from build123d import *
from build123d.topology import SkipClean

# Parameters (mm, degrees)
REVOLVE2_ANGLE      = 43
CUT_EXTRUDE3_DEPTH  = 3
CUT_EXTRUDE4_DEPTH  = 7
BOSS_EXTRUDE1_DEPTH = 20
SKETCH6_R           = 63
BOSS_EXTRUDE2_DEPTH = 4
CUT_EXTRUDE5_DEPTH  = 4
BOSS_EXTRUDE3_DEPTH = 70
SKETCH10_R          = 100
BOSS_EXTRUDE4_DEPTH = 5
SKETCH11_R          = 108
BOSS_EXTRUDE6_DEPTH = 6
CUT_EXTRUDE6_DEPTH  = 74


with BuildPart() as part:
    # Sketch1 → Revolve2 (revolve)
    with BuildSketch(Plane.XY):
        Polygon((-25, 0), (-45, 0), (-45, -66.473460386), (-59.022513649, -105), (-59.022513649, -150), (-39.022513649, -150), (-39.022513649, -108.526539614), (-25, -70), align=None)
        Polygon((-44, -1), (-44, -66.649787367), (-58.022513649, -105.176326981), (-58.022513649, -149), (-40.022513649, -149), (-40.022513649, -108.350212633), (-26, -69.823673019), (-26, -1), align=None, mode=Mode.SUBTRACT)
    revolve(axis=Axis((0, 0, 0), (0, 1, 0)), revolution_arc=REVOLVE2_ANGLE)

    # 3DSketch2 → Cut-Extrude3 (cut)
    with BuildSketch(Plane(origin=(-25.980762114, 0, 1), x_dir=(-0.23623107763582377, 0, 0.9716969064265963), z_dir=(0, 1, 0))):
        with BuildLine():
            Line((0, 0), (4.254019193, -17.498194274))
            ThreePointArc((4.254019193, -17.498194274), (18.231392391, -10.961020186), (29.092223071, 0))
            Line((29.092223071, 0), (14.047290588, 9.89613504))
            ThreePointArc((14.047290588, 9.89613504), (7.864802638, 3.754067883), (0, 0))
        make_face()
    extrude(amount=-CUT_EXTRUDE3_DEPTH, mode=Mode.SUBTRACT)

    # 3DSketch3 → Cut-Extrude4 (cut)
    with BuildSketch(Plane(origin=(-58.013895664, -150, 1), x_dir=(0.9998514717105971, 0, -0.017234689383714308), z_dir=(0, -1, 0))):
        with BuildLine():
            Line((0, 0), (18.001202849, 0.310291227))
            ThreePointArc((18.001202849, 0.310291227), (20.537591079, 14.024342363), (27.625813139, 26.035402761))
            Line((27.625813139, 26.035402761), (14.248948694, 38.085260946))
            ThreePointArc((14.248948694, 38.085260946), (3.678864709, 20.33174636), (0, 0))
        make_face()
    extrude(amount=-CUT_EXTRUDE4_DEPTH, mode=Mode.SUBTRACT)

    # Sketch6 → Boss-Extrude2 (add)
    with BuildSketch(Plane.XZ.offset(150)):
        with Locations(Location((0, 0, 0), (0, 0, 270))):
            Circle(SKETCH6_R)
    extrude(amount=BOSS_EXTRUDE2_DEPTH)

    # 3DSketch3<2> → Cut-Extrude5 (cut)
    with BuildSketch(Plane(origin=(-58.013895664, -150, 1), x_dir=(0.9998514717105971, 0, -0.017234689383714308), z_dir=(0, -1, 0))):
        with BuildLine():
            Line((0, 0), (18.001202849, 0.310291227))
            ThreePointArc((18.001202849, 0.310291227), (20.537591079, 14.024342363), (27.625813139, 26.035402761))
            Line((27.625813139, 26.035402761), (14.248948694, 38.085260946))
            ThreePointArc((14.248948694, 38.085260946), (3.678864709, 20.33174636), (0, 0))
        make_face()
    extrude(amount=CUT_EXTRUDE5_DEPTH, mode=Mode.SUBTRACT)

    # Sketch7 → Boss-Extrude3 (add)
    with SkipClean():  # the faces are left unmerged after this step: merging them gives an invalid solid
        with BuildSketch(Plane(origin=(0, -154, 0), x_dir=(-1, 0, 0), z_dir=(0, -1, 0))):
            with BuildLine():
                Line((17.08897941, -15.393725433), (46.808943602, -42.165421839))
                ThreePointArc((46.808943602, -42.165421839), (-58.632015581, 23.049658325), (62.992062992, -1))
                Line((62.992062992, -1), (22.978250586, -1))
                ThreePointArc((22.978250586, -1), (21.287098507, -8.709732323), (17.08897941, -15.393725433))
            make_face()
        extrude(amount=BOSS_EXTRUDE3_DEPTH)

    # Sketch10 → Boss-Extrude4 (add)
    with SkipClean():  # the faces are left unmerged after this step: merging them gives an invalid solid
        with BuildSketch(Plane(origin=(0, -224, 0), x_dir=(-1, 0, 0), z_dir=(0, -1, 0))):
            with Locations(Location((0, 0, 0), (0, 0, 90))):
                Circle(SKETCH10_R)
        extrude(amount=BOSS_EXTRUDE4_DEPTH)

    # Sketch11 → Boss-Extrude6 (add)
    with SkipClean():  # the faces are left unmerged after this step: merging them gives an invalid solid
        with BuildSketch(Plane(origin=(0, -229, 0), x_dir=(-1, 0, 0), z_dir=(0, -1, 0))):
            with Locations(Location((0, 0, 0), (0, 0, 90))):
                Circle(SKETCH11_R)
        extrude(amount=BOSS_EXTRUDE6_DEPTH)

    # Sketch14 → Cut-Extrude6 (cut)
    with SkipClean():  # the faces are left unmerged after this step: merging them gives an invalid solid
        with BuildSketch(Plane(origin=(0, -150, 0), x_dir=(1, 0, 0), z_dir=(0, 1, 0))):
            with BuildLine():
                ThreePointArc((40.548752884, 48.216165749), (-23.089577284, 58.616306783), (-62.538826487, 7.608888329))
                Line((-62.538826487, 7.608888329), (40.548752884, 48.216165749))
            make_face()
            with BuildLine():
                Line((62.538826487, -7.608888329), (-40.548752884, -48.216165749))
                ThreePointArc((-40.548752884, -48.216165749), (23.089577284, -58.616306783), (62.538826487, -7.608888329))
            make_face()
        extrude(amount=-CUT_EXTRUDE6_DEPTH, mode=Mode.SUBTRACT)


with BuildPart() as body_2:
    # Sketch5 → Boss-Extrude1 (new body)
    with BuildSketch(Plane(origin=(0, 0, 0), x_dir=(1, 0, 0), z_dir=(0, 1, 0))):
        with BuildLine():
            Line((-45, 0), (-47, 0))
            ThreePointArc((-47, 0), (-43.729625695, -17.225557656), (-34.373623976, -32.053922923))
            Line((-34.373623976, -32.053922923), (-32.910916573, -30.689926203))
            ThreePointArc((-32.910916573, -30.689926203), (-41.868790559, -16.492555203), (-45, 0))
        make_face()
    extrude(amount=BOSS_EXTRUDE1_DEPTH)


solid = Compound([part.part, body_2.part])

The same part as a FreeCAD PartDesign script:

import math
import FreeCAD as App
import Part
import Sketcher
Q = App.Units.Quantity

doc = App.newDocument("Part")
body = doc.addObject("PartDesign::Body", "Body")

sketch1 = doc.addObject("Sketcher::SketchObject", "Sketch")
body.addObject(sketch1)
sketch1.AttachmentSupport = (doc.XY_Plane, [""])
sketch1.MapMode = "FlatFace"
sketch1.addGeometry(Part.LineSegment(App.Vector(-25, 0, 0), App.Vector(-45, 0, 0)), False)
sketch1.addGeometry(Part.LineSegment(App.Vector(-45, 0, 0), App.Vector(-45, -66, 0)), False)
sketch1.addGeometry(Part.LineSegment(App.Vector(-45, -66, 0), App.Vector(-59, -105, 0)), False)
sketch1.addGeometry(Part.LineSegment(App.Vector(-59, -105, 0), App.Vector(-59, -150, 0)), False)
sketch1.addGeometry(Part.LineSegment(App.Vector(-59, -150, 0), App.Vector(-39, -150, 0)), False)
sketch1.addGeometry(Part.LineSegment(App.Vector(-39, -150, 0), App.Vector(-39, -109, 0)), False)
sketch1.addGeometry(Part.LineSegment(App.Vector(-39, -109, 0), App.Vector(-25, -70, 0)), False)
sketch1.addGeometry(Part.LineSegment(App.Vector(-25, -70, 0), App.Vector(-25, 0, 0)), False)
sketch1.addGeometry(Part.LineSegment(App.Vector(-44, -67, 0), App.Vector(-44, -1, 0)), False)
sketch1.addGeometry(Part.LineSegment(App.Vector(-44, -1, 0), App.Vector(-26, -1, 0)), False)
sketch1.addGeometry(Part.LineSegment(App.Vector(-26, -1, 0), App.Vector(-26, -70, 0)), False)
sketch1.addGeometry(Part.LineSegment(App.Vector(-26, -70, 0), App.Vector(-40, -108, 0)), False)
sketch1.addGeometry(Part.LineSegment(App.Vector(-40, -108, 0), App.Vector(-40, -149, 0)), False)
sketch1.addGeometry(Part.LineSegment(App.Vector(-40, -149, 0), App.Vector(-58, -149, 0)), False)
sketch1.addGeometry(Part.LineSegment(App.Vector(-58, -149, 0), App.Vector(-58, -105, 0)), False)
sketch1.addGeometry(Part.LineSegment(App.Vector(-58, -105, 0), App.Vector(-44, -67, 0)), False)
sketch1.addConstraint(Sketcher.Constraint("Coincident", 0, 2, 1, 1))
sketch1.addConstraint(Sketcher.Constraint("Coincident", 1, 2, 2, 1))
sketch1.addConstraint(Sketcher.Constraint("Coincident", 2, 2, 3, 1))
sketch1.addConstraint(Sketcher.Constraint("Coincident", 3, 2, 4, 1))
sketch1.addConstraint(Sketcher.Constraint("Coincident", 4, 2, 5, 1))
sketch1.addConstraint(Sketcher.Constraint("Coincident", 5, 2, 6, 1))
sketch1.addConstraint(Sketcher.Constraint("Coincident", 6, 2, 7, 1))
sketch1.addConstraint(Sketcher.Constraint("Coincident", 7, 2, 0, 1))
sketch1.addConstraint(Sketcher.Constraint("Coincident", 8, 2, 9, 1))
sketch1.addConstraint(Sketcher.Constraint("Coincident", 9, 2, 10, 1))
sketch1.addConstraint(Sketcher.Constraint("Coincident", 10, 2, 11, 1))
sketch1.addConstraint(Sketcher.Constraint("Coincident", 11, 2, 12, 1))
sketch1.addConstraint(Sketcher.Constraint("Coincident", 12, 2, 13, 1))
sketch1.addConstraint(Sketcher.Constraint("Coincident", 13, 2, 14, 1))
sketch1.addConstraint(Sketcher.Constraint("Coincident", 14, 2, 15, 1))
sketch1.addConstraint(Sketcher.Constraint("Coincident", 15, 2, 8, 1))
sketch1.addConstraint(Sketcher.Constraint("Horizontal", 0))
sketch1.addConstraint(Sketcher.Constraint("Vertical", 1))
sketch1.addConstraint(Sketcher.Constraint("Vertical", 3))
sketch1.addConstraint(Sketcher.Constraint("Horizontal", 4))
sketch1.addConstraint(Sketcher.Constraint("Vertical", 5))
sketch1.addConstraint(Sketcher.Constraint("Vertical", 7))
sketch1.addConstraint(Sketcher.Constraint("Vertical", 8))
sketch1.addConstraint(Sketcher.Constraint("Horizontal", 9))
sketch1.addConstraint(Sketcher.Constraint("Vertical", 10))
sketch1.addConstraint(Sketcher.Constraint("Vertical", 12))
sketch1.addConstraint(Sketcher.Constraint("Horizontal", 13))
sketch1.addConstraint(Sketcher.Constraint("Vertical", 14))
sketch1.addConstraint(Sketcher.Constraint("PointOnObject", 0, 2, -1))
sketch1.addConstraint(Sketcher.Constraint("Parallel", 2, 6))
sketch1.addConstraint(Sketcher.Constraint("Parallel", 6, 11))
sketch1.addConstraint(Sketcher.Constraint("Parallel", 11, 15))
sketch1.addConstraint(Sketcher.Constraint("Equal", 0, 4))
sketch1.addConstraint(Sketcher.Constraint("Equal", 9, 13))
sketch1.addConstraint(Sketcher.Constraint("Equal", 6, 11))
sketch1.addConstraint(Sketcher.Constraint("DistanceX", 0, 2, 0, 1, Q("20 mm")))
sketch1.addConstraint(Sketcher.Constraint("DistanceX", 9, 1, 9, 2, Q("18 mm")))
sketch1.addConstraint(Sketcher.Constraint("DistanceY", 3, 2, 3, 1, Q("45 mm")))
sketch1.addConstraint(Sketcher.Constraint("DistanceY", 7, 1, 7, 2, Q("70 mm")))
sketch1.addConstraint(Sketcher.Constraint("Angle", 2, Q("-110 deg")))
sketch1.addConstraint(Sketcher.Constraint("DistanceX", 0, 2, -1, 1, Q("45 mm")))
sketch1.addConstraint(Sketcher.Constraint("DistanceY", 2, 2, -1, 1, Q("105 mm")))
sketch1.addConstraint(Sketcher.Constraint("DistanceX", 8, 2, -1, 1, Q("44 mm")))
sketch1.addConstraint(Sketcher.Constraint("DistanceY", 8, 2, -1, 1, Q("1 mm")))
sketch1.addConstraint(Sketcher.Constraint("DistanceY", 12, 2, -1, 1, Q("149 mm")))
sketch1.addConstraint(Sketcher.Constraint("DistanceY", 1, 2, 1, 1, Q("66.47346 mm")))
sketch1.addConstraint(Sketcher.Constraint("DistanceY", 8, 1, 8, 2, Q("65.649787 mm")))
sketch1.addConstraint(Sketcher.Constraint("DistanceY", 10, 2, 10, 1, Q("68.823673 mm")))
revolution = doc.addObject("PartDesign::Revolution", "Revolution")
body.addObject(revolution)
revolution.Profile = sketch1
revolution.ReferenceAxis = (sketch1, ["V_Axis"])
revolution.Angle = 43

sketch2 = doc.addObject("Sketcher::SketchObject", "Sketch001")
body.addObject(sketch2)
sketch2.AttachmentSupport = (doc.XZ_Plane, [""])
sketch2.MapMode = "FlatFace"
sketch2.addGeometry(Part.LineSegment(App.Vector(-26, 1, 0), App.Vector(-44, 1, 0)), False)
sketch2.addGeometry(Part.ArcOfCircle(Part.Circle(App.Vector(0, 0, 0), App.Vector(0, 0, 1), 44), math.radians(138), math.radians(179)), False)
sketch2.addGeometry(Part.LineSegment(App.Vector(-33, 29, 0), App.Vector(-20, 17, 0)), False)
sketch2.addGeometry(Part.ArcOfCircle(Part.Circle(App.Vector(0, 0, 0), App.Vector(0, 0, 1), 26), math.radians(139), math.radians(178)), False)
sketch2.addConstraint(Sketcher.Constraint("Coincident", 0, 2, 1, 2))
sketch2.addConstraint(Sketcher.Constraint("Coincident", 1, 1, 2, 1))
sketch2.addConstraint(Sketcher.Constraint("Coincident", 2, 2, 3, 1))
sketch2.addConstraint(Sketcher.Constraint("Coincident", 3, 2, 0, 1))
sketch2.addConstraint(Sketcher.Constraint("Horizontal", 0))
sketch2.addConstraint(Sketcher.Constraint("Coincident", 1, 3, -1, 1))
sketch2.addConstraint(Sketcher.Constraint("Coincident", 3, 3, -1, 1))
sketch2.addConstraint(Sketcher.Constraint("Radius", 1, Q("44 mm")))
sketch2.addConstraint(Sketcher.Constraint("Radius", 3, Q("26 mm")))
sketch2.addConstraint(Sketcher.Constraint("Angle", 2, Q("-43 deg")))
sketch2.addConstraint(Sketcher.Constraint("DistanceY", -1, 1, 0, 2, Q("1 mm")))
sketch2.addConstraint(Sketcher.Constraint("DistanceX", 1, 1, -1, 1, Q("32.853249 mm")))
pocket1 = doc.addObject("PartDesign::Pocket", "Pocket")
body.addObject(pocket1)
pocket1.Profile = sketch2
pocket1.Length = 3
pocket1.Reversed = True

sketch3 = doc.addObject("Sketcher::SketchObject", "Sketch002")
body.addObject(sketch3)
sketch3.AttachmentSupport = (doc.XZ_Plane, [""])
sketch3.MapMode = "FlatFace"
sketch3.AttachmentOffset = App.Placement(App.Vector(0, 0, 150), App.Rotation())
sketch3.addGeometry(Part.LineSegment(App.Vector(-58, 1, 0), App.Vector(-40, 1, 0)), False)
sketch3.addGeometry(Part.ArcOfCircle(Part.Circle(App.Vector(0, 0, 0), App.Vector(0, 0, 1), 40), math.radians(138), math.radians(179)), False)
sketch3.addGeometry(Part.LineSegment(App.Vector(-30, 27, 0), App.Vector(-43, 39, 0)), False)
sketch3.addGeometry(Part.ArcOfCircle(Part.Circle(App.Vector(0, 0, 0), App.Vector(0, 0, 1), 58), math.radians(138), math.radians(179)), False)
sketch3.addConstraint(Sketcher.Constraint("Coincident", 0, 2, 1, 2))
sketch3.addConstraint(Sketcher.Constraint("Coincident", 1, 1, 2, 1))
sketch3.addConstraint(Sketcher.Constraint("Coincident", 2, 2, 3, 1))
sketch3.addConstraint(Sketcher.Constraint("Coincident", 3, 2, 0, 1))
sketch3.addConstraint(Sketcher.Constraint("Horizontal", 0))
sketch3.addConstraint(Sketcher.Constraint("Coincident", 1, 3, -1, 1))
sketch3.addConstraint(Sketcher.Constraint("Coincident", 3, 3, -1, 1))
sketch3.addConstraint(Sketcher.Constraint("Angle", 2, Q("137 deg")))
sketch3.addConstraint(Sketcher.Constraint("DistanceY", -1, 1, 0, 2, Q("1 mm")))
sketch3.addConstraint(Sketcher.Constraint("Radius", 1, Q("40.022514 mm")))
sketch3.addConstraint(Sketcher.Constraint("Radius", 3, Q("58.022514 mm")))
sketch3.addConstraint(Sketcher.Constraint("DistanceY", -1, 1, 2, 2, Q("38.834028 mm")))
pocket2 = doc.addObject("PartDesign::Pocket", "Pocket001")
body.addObject(pocket2)
pocket2.Profile = sketch3
pocket2.Length = 7

sketch4 = doc.addObject("Sketcher::SketchObject", "Sketch003")
body.addObject(sketch4)
sketch4.AttachmentSupport = (doc.XZ_Plane, [""])
sketch4.MapMode = "FlatFace"
sketch4.AttachmentOffset = App.Placement(App.Vector(0, 0, 150), App.Rotation())
sketch4.addGeometry(Part.Circle(App.Vector(0, 0, 0), App.Vector(0, 0, 1), 63), False)
sketch4.addConstraint(Sketcher.Constraint("Coincident", 0, 3, -1, 1))
sketch4.addConstraint(Sketcher.Constraint("Diameter", 0, Q("126 mm")))
pad1 = doc.addObject("PartDesign::Pad", "Pad")
body.addObject(pad1)
pad1.Profile = sketch4
pad1.Length = 4

sketch5 = doc.addObject("Sketcher::SketchObject", "Sketch004")
body.addObject(sketch5)
sketch5.AttachmentSupport = (doc.XZ_Plane, [""])
sketch5.MapMode = "FlatFace"
sketch5.AttachmentOffset = App.Placement(App.Vector(0, 0, 150), App.Rotation())
sketch5.addGeometry(Part.LineSegment(App.Vector(-58, 1, 0), App.Vector(-40, 1, 0)), False)
sketch5.addGeometry(Part.ArcOfCircle(Part.Circle(App.Vector(0, 0, 0), App.Vector(0, 0, 1), 40), math.radians(138), math.radians(179)), False)
sketch5.addGeometry(Part.LineSegment(App.Vector(-30, 27, 0), App.Vector(-43, 39, 0)), False)
sketch5.addGeometry(Part.ArcOfCircle(Part.Circle(App.Vector(0, 0, 0), App.Vector(0, 0, 1), 58), math.radians(138), math.radians(179)), False)
sketch5.addConstraint(Sketcher.Constraint("Coincident", 0, 2, 1, 2))
sketch5.addConstraint(Sketcher.Constraint("Coincident", 1, 1, 2, 1))
sketch5.addConstraint(Sketcher.Constraint("Coincident", 2, 2, 3, 1))
sketch5.addConstraint(Sketcher.Constraint("Coincident", 3, 2, 0, 1))
sketch5.addConstraint(Sketcher.Constraint("Horizontal", 0))
sketch5.addConstraint(Sketcher.Constraint("Coincident", 1, 3, -1, 1))
sketch5.addConstraint(Sketcher.Constraint("Coincident", 3, 3, -1, 1))
sketch5.addConstraint(Sketcher.Constraint("Angle", 2, Q("137 deg")))
sketch5.addConstraint(Sketcher.Constraint("DistanceY", -1, 1, 0, 2, Q("1 mm")))
sketch5.addConstraint(Sketcher.Constraint("Radius", 1, Q("40.022514 mm")))
sketch5.addConstraint(Sketcher.Constraint("Radius", 3, Q("58.022514 mm")))
sketch5.addConstraint(Sketcher.Constraint("DistanceY", -1, 1, 2, 2, Q("38.834028 mm")))
pocket3 = doc.addObject("PartDesign::Pocket", "Pocket002")
body.addObject(pocket3)
pocket3.Profile = sketch5
pocket3.Length = 4
pocket3.Reversed = True

sketch6 = doc.addObject("Sketcher::SketchObject", "Sketch005")
body.addObject(sketch6)
sketch6.AttachmentSupport = (doc.XZ_Plane, [""])
sketch6.MapMode = "FlatFace"
sketch6.AttachmentOffset = App.Placement(App.Vector(0, 0, 154), App.Rotation())
sketch6.addGeometry(Part.LineSegment(App.Vector(-47, 42, 0), App.Vector(-17, 15, 0)), False)
sketch6.addGeometry(Part.ArcOfCircle(Part.Circle(App.Vector(0, 0, 0), App.Vector(0, 0, 1), 23), math.radians(138), math.radians(178)), False)
sketch6.addGeometry(Part.LineSegment(App.Vector(-23, 1, 0), App.Vector(-63, 1, 0)), False)
sketch6.addGeometry(Part.ArcOfCircle(Part.Circle(App.Vector(0, 0, 0), App.Vector(0, 0, 1), 63), math.radians(179), math.radians(498)), False)
sketch6.addConstraint(Sketcher.Constraint("Coincident", 0, 2, 1, 1))
sketch6.addConstraint(Sketcher.Constraint("Coincident", 1, 2, 2, 1))
sketch6.addConstraint(Sketcher.Constraint("Coincident", 2, 2, 3, 1))
sketch6.addConstraint(Sketcher.Constraint("Coincident", 3, 2, 0, 1))
sketch6.addConstraint(Sketcher.Constraint("Horizontal", 2))
sketch6.addConstraint(Sketcher.Constraint("Coincident", 1, 3, -1, 1))
sketch6.addConstraint(Sketcher.Constraint("Coincident", 3, 3, -1, 1))
sketch6.addConstraint(Sketcher.Constraint("Radius", 1, Q("23 mm")))
sketch6.addConstraint(Sketcher.Constraint("Radius", 3, Q("63 mm")))
sketch6.addConstraint(Sketcher.Constraint("DistanceY", -1, 1, 1, 2, Q("1 mm")))
sketch6.addConstraint(Sketcher.Constraint("DistanceX", 0, 2, -1, 1, Q("17.088979 mm")))
sketch6.addConstraint(Sketcher.Constraint("DistanceY", -1, 1, 3, 2, Q("42.165422 mm")))
pad2 = doc.addObject("PartDesign::Pad", "Pad001")
body.addObject(pad2)
pad2.Profile = sketch6
pad2.Length = 70

sketch7 = doc.addObject("Sketcher::SketchObject", "Sketch006")
body.addObject(sketch7)
sketch7.AttachmentSupport = (doc.XZ_Plane, [""])
sketch7.MapMode = "FlatFace"
sketch7.AttachmentOffset = App.Placement(App.Vector(0, 0, 224), App.Rotation())
sketch7.addGeometry(Part.Circle(App.Vector(0, 0, 0), App.Vector(0, 0, 1), 100), False)
sketch7.addConstraint(Sketcher.Constraint("Coincident", 0, 3, -1, 1))
sketch7.addConstraint(Sketcher.Constraint("Diameter", 0, Q("200 mm")))
pad3 = doc.addObject("PartDesign::Pad", "Pad002")
body.addObject(pad3)
pad3.Profile = sketch7
pad3.Length = 5

sketch8 = doc.addObject("Sketcher::SketchObject", "Sketch007")
body.addObject(sketch8)
sketch8.AttachmentSupport = (doc.XZ_Plane, [""])
sketch8.MapMode = "FlatFace"
sketch8.AttachmentOffset = App.Placement(App.Vector(0, 0, 229), App.Rotation())
sketch8.addGeometry(Part.Circle(App.Vector(0, 0, 0), App.Vector(0, 0, 1), 108), False)
sketch8.addConstraint(Sketcher.Constraint("Coincident", 0, 3, -1, 1))
sketch8.addConstraint(Sketcher.Constraint("Diameter", 0, Q("216 mm")))
pad4 = doc.addObject("PartDesign::Pad", "Pad003")
body.addObject(pad4)
pad4.Profile = sketch8
pad4.Length = 6

sketch9 = doc.addObject("Sketcher::SketchObject", "Sketch008")
body.addObject(sketch9)
sketch9.AttachmentSupport = (doc.XZ_Plane, [""])
sketch9.MapMode = "FlatFace"
sketch9.AttachmentOffset = App.Placement(App.Vector(0, 0, 150), App.Rotation())
sketch9.addGeometry(Part.ArcOfCircle(Part.Circle(App.Vector(0, 0, 0), App.Vector(0, 0, 1), 63), math.radians(-173), math.radians(-50)), False)
sketch9.addGeometry(Part.LineSegment(App.Vector(-63, -8, 0), App.Vector(41, -48, 0)), False)
sketch9.addGeometry(Part.LineSegment(App.Vector(63, 8, 0), App.Vector(-41, 48, 0)), False)
sketch9.addGeometry(Part.ArcOfCircle(Part.Circle(App.Vector(0, 0, 0), App.Vector(0, 0, 1), 63), math.radians(7), math.radians(130)), False)
sketch9.addConstraint(Sketcher.Constraint("Coincident", 0, 1, 1, 1))
sketch9.addConstraint(Sketcher.Constraint("Coincident", 1, 2, 0, 2))
sketch9.addConstraint(Sketcher.Constraint("Coincident", 2, 1, 3, 1))
sketch9.addConstraint(Sketcher.Constraint("Coincident", 3, 2, 2, 2))
sketch9.addConstraint(Sketcher.Constraint("Coincident", 0, 3, -1, 1))
sketch9.addConstraint(Sketcher.Constraint("Coincident", 3, 3, -1, 1))
sketch9.addConstraint(Sketcher.Constraint("Equal", 0, 3))
sketch9.addConstraint(Sketcher.Constraint("Parallel", 1, 2))
sketch9.addConstraint(Sketcher.Constraint("Equal", 1, 2))
sketch9.addConstraint(Sketcher.Constraint("Radius", 0, Q("63 mm")))
sketch9.addConstraint(Sketcher.Constraint("Angle", 1, Q("-21.5 deg")))
sketch9.addConstraint(Sketcher.Constraint("Distance", 1, Q("110.797112 mm")))
pocket4 = doc.addObject("PartDesign::Pocket", "Pocket003")
body.addObject(pocket4)
pocket4.Profile = sketch9
pocket4.Length = 74
pocket4.Reversed = True
body2 = doc.addObject("PartDesign::Body", "Body001")

sketch10 = doc.addObject("Sketcher::SketchObject", "Sketch009")
body2.addObject(sketch10)
sketch10.AttachmentSupport = (doc.getObject("XZ_Plane001"), [""])
sketch10.MapMode = "FlatFace"
sketch10.addGeometry(Part.LineSegment(App.Vector(-45, 0, 0), App.Vector(-47, 0, 0)), False)
sketch10.addGeometry(Part.ArcOfCircle(Part.Circle(App.Vector(0, 0, 0), App.Vector(0, 0, 1), 47), math.radians(137), math.radians(180)), False)
sketch10.addGeometry(Part.LineSegment(App.Vector(-34.4, 32.1, 0), App.Vector(-32.9, 30.7, 0)), False)
sketch10.addGeometry(Part.ArcOfCircle(Part.Circle(App.Vector(0, 0, 0), App.Vector(0, 0, 1), 45), math.radians(137), math.radians(180)), False)
sketch10.addConstraint(Sketcher.Constraint("Coincident", 0, 2, 1, 2))
sketch10.addConstraint(Sketcher.Constraint("Coincident", 1, 1, 2, 1))
sketch10.addConstraint(Sketcher.Constraint("Coincident", 2, 2, 3, 1))
sketch10.addConstraint(Sketcher.Constraint("Coincident", 3, 2, 0, 1))
sketch10.addConstraint(Sketcher.Constraint("Horizontal", 0))
sketch10.addConstraint(Sketcher.Constraint("Coincident", 1, 3, -1, 1))
sketch10.addConstraint(Sketcher.Constraint("Coincident", 3, 3, -1, 1))
sketch10.addConstraint(Sketcher.Constraint("PointOnObject", 0, 2, -1))
sketch10.addConstraint(Sketcher.Constraint("Radius", 1, Q("47 mm")))
sketch10.addConstraint(Sketcher.Constraint("Radius", 3, Q("45 mm")))
sketch10.addConstraint(Sketcher.Constraint("Angle", 2, Q("-43 deg")))
sketch10.addConstraint(Sketcher.Constraint("DistanceX", 1, 1, -1, 1, Q("34.373624 mm")))
pad5 = doc.addObject("PartDesign::Pad", "Pad004")
body2.addObject(pad5)
pad5.Profile = sketch10
pad5.Length = 20
pad5.Reversed = True

doc.recompute()
